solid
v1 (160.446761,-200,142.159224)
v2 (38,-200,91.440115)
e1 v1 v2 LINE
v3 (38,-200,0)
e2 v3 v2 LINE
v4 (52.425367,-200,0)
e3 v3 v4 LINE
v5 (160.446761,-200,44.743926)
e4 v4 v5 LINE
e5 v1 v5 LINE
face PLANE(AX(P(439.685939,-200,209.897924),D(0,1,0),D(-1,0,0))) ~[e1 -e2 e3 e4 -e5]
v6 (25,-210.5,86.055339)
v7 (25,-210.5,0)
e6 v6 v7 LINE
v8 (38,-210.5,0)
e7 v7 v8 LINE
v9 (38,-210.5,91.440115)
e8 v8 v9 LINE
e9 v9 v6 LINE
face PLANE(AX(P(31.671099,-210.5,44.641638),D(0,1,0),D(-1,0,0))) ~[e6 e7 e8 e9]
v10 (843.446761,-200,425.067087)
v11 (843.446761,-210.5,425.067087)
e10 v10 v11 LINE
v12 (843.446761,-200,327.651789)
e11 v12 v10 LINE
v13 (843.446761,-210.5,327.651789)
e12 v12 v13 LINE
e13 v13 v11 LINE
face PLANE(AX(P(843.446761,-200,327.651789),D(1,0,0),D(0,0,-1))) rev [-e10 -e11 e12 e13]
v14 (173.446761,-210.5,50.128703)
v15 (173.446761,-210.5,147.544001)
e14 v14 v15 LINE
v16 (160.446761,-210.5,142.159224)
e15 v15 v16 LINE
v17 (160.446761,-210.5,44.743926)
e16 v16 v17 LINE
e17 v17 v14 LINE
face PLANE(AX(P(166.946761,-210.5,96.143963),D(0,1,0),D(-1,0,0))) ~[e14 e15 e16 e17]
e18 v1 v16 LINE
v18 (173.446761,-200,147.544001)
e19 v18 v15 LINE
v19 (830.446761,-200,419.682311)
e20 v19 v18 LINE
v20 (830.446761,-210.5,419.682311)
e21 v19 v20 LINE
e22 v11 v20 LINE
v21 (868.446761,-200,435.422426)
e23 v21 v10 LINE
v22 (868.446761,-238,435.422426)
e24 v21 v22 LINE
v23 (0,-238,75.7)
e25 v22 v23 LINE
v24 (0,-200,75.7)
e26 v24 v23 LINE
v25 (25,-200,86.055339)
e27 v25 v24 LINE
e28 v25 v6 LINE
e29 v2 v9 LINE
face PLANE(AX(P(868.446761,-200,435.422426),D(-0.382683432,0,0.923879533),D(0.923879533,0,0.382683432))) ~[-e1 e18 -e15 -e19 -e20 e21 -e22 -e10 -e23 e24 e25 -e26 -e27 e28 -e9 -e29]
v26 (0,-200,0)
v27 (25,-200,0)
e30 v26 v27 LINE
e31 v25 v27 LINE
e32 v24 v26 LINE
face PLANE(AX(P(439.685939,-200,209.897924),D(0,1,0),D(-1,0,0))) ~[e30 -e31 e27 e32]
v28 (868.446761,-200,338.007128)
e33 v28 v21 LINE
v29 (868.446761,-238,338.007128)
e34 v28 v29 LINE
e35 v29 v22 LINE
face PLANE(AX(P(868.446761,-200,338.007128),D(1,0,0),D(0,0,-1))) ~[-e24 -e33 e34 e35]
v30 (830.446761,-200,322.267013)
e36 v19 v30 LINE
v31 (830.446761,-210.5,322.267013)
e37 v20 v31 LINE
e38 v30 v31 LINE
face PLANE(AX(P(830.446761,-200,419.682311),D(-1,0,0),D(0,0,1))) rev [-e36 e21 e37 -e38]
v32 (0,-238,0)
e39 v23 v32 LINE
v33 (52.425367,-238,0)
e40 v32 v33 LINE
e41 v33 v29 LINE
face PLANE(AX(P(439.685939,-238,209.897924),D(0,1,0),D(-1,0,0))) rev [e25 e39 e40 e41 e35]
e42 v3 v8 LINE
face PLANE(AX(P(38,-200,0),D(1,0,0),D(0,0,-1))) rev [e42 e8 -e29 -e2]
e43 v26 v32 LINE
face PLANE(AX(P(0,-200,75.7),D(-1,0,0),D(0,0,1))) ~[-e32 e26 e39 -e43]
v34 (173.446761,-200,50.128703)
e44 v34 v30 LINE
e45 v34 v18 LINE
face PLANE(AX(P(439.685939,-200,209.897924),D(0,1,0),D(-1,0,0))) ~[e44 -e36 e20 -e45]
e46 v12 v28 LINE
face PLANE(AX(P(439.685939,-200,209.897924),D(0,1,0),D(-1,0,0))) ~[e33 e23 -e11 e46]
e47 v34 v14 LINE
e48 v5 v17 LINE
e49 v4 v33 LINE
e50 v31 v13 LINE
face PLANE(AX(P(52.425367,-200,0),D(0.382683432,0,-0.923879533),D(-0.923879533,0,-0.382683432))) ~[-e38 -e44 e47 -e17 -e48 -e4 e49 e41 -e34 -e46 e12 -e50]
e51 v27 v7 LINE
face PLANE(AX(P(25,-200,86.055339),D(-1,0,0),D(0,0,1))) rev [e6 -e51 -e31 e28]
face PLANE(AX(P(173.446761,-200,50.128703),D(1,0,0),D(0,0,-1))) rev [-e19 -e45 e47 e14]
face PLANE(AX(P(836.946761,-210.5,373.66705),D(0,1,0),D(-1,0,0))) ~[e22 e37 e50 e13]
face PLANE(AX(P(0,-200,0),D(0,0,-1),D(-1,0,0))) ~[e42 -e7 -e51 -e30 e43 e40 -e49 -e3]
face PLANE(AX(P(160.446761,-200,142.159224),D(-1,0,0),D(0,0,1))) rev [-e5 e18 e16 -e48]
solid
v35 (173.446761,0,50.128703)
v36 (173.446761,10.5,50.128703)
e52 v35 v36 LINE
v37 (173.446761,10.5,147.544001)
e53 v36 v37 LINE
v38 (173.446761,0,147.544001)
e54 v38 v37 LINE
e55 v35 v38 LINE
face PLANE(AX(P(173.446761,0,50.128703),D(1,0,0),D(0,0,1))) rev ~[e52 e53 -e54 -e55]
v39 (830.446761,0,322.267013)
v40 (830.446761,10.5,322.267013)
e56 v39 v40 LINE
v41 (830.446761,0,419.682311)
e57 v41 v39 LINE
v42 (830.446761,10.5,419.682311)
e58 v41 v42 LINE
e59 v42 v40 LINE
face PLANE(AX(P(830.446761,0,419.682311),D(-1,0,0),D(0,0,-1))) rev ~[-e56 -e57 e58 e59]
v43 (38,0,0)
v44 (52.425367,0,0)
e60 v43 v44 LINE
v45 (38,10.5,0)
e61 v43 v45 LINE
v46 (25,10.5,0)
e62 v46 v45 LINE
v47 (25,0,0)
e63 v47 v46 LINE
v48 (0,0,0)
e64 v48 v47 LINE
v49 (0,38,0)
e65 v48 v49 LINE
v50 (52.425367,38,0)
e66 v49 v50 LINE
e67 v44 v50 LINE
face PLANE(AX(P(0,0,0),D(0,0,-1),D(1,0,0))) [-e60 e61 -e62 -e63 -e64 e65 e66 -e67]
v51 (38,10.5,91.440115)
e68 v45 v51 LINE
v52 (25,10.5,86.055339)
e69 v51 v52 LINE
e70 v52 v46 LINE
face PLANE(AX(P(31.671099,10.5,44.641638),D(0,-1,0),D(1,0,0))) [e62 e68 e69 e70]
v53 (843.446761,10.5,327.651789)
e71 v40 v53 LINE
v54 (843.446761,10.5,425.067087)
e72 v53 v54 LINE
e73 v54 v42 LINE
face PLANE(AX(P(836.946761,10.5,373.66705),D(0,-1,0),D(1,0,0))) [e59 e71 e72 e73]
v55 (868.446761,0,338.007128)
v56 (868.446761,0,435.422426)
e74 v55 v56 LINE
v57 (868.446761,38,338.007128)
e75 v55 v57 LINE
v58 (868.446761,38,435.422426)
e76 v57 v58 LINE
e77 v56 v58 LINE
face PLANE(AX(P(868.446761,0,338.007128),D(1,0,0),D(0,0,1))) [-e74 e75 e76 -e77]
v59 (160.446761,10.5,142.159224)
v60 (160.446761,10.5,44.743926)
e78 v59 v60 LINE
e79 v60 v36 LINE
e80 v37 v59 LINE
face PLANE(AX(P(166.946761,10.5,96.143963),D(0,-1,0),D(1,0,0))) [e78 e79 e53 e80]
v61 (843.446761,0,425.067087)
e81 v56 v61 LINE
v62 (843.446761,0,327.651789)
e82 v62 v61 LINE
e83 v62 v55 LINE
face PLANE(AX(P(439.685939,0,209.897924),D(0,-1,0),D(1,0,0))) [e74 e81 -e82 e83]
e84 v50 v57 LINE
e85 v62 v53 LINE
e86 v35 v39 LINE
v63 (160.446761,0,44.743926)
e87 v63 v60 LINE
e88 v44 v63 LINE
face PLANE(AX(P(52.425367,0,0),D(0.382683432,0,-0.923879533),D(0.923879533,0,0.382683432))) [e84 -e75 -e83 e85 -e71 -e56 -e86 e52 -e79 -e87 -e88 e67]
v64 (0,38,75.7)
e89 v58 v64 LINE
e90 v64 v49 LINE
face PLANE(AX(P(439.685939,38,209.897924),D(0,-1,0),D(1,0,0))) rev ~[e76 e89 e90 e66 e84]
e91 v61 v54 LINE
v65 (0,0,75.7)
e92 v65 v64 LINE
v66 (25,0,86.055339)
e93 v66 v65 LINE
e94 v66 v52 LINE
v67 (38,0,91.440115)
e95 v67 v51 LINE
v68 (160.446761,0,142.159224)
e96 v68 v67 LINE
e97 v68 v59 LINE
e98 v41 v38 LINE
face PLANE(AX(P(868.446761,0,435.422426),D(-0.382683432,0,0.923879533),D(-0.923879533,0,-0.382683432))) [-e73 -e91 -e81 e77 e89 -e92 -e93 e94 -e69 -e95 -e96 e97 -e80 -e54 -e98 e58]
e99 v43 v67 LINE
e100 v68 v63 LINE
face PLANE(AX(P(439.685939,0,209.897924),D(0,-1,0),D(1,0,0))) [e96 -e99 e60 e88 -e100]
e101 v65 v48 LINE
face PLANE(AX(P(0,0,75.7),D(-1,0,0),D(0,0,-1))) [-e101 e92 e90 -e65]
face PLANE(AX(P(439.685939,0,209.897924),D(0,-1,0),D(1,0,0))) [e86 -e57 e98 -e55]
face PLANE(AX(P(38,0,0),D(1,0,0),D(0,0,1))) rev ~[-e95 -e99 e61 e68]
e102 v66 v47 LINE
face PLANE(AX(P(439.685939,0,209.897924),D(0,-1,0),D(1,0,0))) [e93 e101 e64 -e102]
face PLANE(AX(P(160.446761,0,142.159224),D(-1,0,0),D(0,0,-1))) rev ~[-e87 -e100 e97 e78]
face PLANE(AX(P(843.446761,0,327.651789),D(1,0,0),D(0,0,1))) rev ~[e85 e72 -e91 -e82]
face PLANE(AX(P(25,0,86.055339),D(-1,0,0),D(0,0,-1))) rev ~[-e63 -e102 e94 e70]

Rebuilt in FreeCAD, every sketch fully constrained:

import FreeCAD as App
import Part
import Sketcher

V = App.Vector
Q = App.Units.Quantity

doc = App.newDocument("Part")
params = doc.addObject("Spreadsheet::Sheet", "Params")
for row, (alias, value) in enumerate([
    ("sketch1_length", "940 mm"),
    ("sketch1_height", "75.7 mm"),
    ("pad1_length", "38 mm"),
    ("sketch2_width", "13 mm"),
    ("pocket1_length", "10.5 mm"),
], start=1):
    params.set(f"A{row}", alias)
    params.set(f"B{row}", "=" + value)
    params.setAlias(f"B{row}", alias)

body = doc.addObject("PartDesign::Body", "Body")

# Sketch on XZ plane
sketch1 = body.newObject("Sketcher::SketchObject", "Sketch")
sketch1.AttachmentSupport = (doc.getObject("XZ_Plane"), [""])
sketch1.MapMode = "FlatFace"
sketch1.addGeometry([
    Part.LineSegment(V(0, 75.7, 0), V(0, 0, 0)),  # 0
    Part.LineSegment(V(0, 0, 0), V(52.425367, 0, 0)),  # 1
    Part.LineSegment(V(52.425367, 0, 0), V(868.446761, 338.007128, 0)),  # 2
    Part.LineSegment(V(868.446761, 338.007128, 0), V(868.446761, 435.422426, 0)),  # 3
    Part.LineSegment(V(868.446761, 435.422426, 0), V(0, 75.7, 0)),  # 4
], False)
sketch1.addConstraint([
    Sketcher.Constraint("Coincident", 0, 2, 1, 1),
    Sketcher.Constraint("Coincident", 1, 2, 2, 1),
    Sketcher.Constraint("Coincident", 2, 2, 3, 1),
    Sketcher.Constraint("Coincident", 3, 2, 4, 1),
    Sketcher.Constraint("Coincident", 4, 2, 0, 1),
    Sketcher.Constraint("Vertical", 0),
    Sketcher.Constraint("Horizontal", 1),
    Sketcher.Constraint("Vertical", 3),
    Sketcher.Constraint("Coincident", 0, 2, -1, 1),
    Sketcher.Constraint("Parallel", 2, 4),
    Sketcher.Constraint("Distance", 4, Q("940 mm")),
    Sketcher.Constraint("DistanceY", 0, 2, 0, 1, Q("75.7 mm")),
    Sketcher.Constraint("Angle", 2, Q("22.5 deg")),
    Sketcher.Constraint("DistanceY", 3, 1, 3, 2, Q("97.415298 mm")),
])
sketch1.setExpression("Constraints[10]", "Params.sketch1_length")
sketch1.setExpression("Constraints[11]", "Params.sketch1_height")
pad1 = body.newObject("PartDesign::Pad", "Pad")
pad1.Profile = sketch1
pad1.setExpression("Length", "Params.pad1_length")
pad1.Reversed = True

# Sketch on XZ plane
sketch2 = body.newObject("Sketcher::SketchObject", "Sketch001")
sketch2.AttachmentSupport = (doc.getObject("XZ_Plane"), [""])
sketch2.MapMode = "FlatFace"
sketch2.addGeometry([
    Part.LineSegment(V(843.446761, 425.067087, 0), V(830.446761, 419.682311, 0)),  # 0
    Part.LineSegment(V(830.446761, 419.682311, 0), V(830.446761, 322.267013, 0)),  # 1
    Part.LineSegment(V(830.446761, 322.267013, 0), V(843.446761, 327.651789, 0)),  # 2
    Part.LineSegment(V(843.446761, 327.651789, 0), V(843.446761, 425.067087, 0)),  # 3
    Part.LineSegment(V(173.446761, 50.128703, 0), V(173.446761, 147.544001, 0)),  # 4
    Part.LineSegment(V(173.446761, 147.544001, 0), V(160.446761, 142.159224, 0)),  # 5
    Part.LineSegment(V(160.446761, 142.159224, 0), V(160.446761, 44.743926, 0)),  # 6
    Part.LineSegment(V(160.446761, 44.743926, 0), V(173.446761, 50.128703, 0)),  # 7
    Part.LineSegment(V(25, 0, 0), V(38, 0, 0)),  # 8
    Part.LineSegment(V(38, 0, 0), V(38, 91.440115, 0)),  # 9
    Part.LineSegment(V(38, 91.440115, 0), V(25, 86.055339, 0)),  # 10
    Part.LineSegment(V(25, 86.055339, 0), V(25, 0, 0)),  # 11
], False)
sketch2.addConstraint([
    Sketcher.Constraint("Coincident", 0, 2, 1, 1),
    Sketcher.Constraint("Coincident", 1, 2, 2, 1),
    Sketcher.Constraint("Coincident", 2, 2, 3, 1),
    Sketcher.Constraint("Coincident", 3, 2, 0, 1),
    Sketcher.Constraint("Coincident", 4, 2, 5, 1),
    Sketcher.Constraint("Coincident", 5, 2, 6, 1),
    Sketcher.Constraint("Coincident", 6, 2, 7, 1),
    Sketcher.Constraint("Coincident", 7, 2, 4, 1),
    Sketcher.Constraint("Coincident", 8, 2, 9, 1),
    Sketcher.Constraint("Coincident", 9, 2, 10, 1),
    Sketcher.Constraint("Coincident", 10, 2, 11, 1),
    Sketcher.Constraint("Coincident", 11, 2, 8, 1),
    Sketcher.Constraint("Vertical", 1),
    Sketcher.Constraint("Vertical", 3),
    Sketcher.Constraint("Vertical", 4),
    Sketcher.Constraint("Vertical", 6),
    Sketcher.Constraint("Horizontal", 8),
    Sketcher.Constraint("Vertical", 9),
    Sketcher.Constraint("Vertical", 11),
    Sketcher.Constraint("PointOnObject", 8, 2, -1),
    Sketcher.Constraint("Parallel", 0, 2),
    Sketcher.Constraint("Parallel", 2, 5),
    Sketcher.Constraint("Parallel", 5, 7),
    Sketcher.Constraint("Parallel", 7, 10),
    Sketcher.Constraint("Equal", 3, 4),
    Sketcher.Constraint("Equal", 2, 5),
    Sketcher.Constraint("Equal", 7, 10),
    Sketcher.Constraint("DistanceX", 8, 1, 8, 2, Q("13 mm")),
    Sketcher.Constraint("DistanceX", -1, 1, 8, 2, Q("38 mm")),
    Sketcher.Constraint("Angle", 0, Q("-157.5 deg")),
    Sketcher.Constraint("DistanceX", 4, 2, 1, 2, Q("657 mm")),
    Sketcher.Constraint("DistanceY", 1, 2, 1, 1, Q("97.415298 mm")),
    Sketcher.Constraint("DistanceY", -1, 1, 4, 2, Q("147.544001 mm")),
    Sketcher.Constraint("DistanceY", 11, 2, 11, 1, Q("86.055339 mm")),
    Sketcher.Constraint("DistanceX", -1, 1, 0, 2, Q("830.446761 mm")),
    Sketcher.Constraint("DistanceY", -1, 1, 0, 2, Q("419.682311 mm")),
])
sketch2.setExpression("Constraints[27]", "Params.sketch2_width")
pocket1 = body.newObject("PartDesign::Pocket", "Pocket")
pocket1.Profile = sketch2
pocket1.setExpression("Length", "Params.pocket1_length")
body2 = doc.addObject("PartDesign::Body", "Body001")
doc.recompute()

mirroring = doc.addObject("Part::Mirroring", "Mirroring")
mirroring.Source = body
mirroring.Base = V(501.946761, -100, 234.905507)
mirroring.Normal = V(0, -1, 0)
body2.BaseFeature = mirroring
doc.recompute()
mirroring.Visibility = False

doc.recompute()
